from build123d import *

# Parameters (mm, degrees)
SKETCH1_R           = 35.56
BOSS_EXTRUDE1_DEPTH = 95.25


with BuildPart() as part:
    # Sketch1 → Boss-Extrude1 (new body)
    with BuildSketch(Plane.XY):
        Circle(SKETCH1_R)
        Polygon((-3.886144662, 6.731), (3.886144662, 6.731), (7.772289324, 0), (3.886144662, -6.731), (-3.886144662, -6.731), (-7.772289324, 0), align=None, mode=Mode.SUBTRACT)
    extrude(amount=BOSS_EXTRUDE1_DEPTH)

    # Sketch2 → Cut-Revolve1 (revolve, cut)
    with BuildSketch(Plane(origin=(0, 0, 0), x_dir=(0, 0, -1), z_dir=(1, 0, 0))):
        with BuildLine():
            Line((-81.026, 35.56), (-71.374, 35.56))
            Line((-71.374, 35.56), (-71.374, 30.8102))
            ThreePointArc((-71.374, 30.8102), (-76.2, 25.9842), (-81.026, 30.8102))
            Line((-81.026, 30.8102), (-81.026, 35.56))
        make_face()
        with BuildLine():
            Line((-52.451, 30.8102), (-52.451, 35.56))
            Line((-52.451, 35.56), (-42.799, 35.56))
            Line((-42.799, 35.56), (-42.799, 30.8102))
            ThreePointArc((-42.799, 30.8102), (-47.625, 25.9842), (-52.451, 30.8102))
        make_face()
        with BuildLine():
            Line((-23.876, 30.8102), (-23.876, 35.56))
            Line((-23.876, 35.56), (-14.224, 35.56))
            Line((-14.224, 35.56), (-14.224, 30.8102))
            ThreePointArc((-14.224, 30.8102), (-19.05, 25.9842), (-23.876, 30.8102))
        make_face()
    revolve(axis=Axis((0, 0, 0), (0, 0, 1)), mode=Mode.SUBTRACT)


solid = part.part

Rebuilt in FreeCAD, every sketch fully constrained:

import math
import FreeCAD as App
import Part
import Sketcher
Q = App.Units.Quantity


def add_polygon(sketch, points):
    """Adds a closed chain of lines whose ends are joined by coincident constraints."""
    first, n = sketch.GeometryCount, len(points)
    for a, b in zip(points, points[1:] + points[:1]):
        sketch.addGeometry(Part.LineSegment(App.Vector(*a, 0), App.Vector(*b, 0)), False)
    for i in range(n):
        sketch.addConstraint(Sketcher.Constraint("Coincident", first + i, 2, first + (i + 1) % n, 1))

doc = App.newDocument("Part")
params = doc.addObject("Spreadsheet::Sheet", "Params")
for row, (alias, value) in enumerate([
    ("sketch1_diameter", "2.8 in"),
    ("pad1_length", "3.75 in"),
    ("sketch2_radius", "0.19 in"),
    ("sketch2_width", "0.187 in"),
    ("groove_angle", "360 deg"),
], start=1):
    params.set(f"A{row}", alias)
    params.set(f"B{row}", "=" + value)
    params.setAlias(f"B{row}", alias)

body = doc.addObject("PartDesign::Body", "Body")

sketch1 = body.newObject("Sketcher::SketchObject", "Sketch")
sketch1.AttachmentSupport = (doc.getObject("XY_Plane"), [""])
sketch1.MapMode = "FlatFace"
sketch1.addGeometry(Part.Circle(App.Vector(0, 0, 0), App.Vector(0, 0, 1), 36), False)
add_polygon(sketch1, [(-8, 0), (-4, 7), (4, 7), (8, 0), (4, -7), (-4, -7)])
sketch1.addConstraint([
    Sketcher.Constraint("Horizontal", 2),
    Sketcher.Constraint("Horizontal", 5),
    Sketcher.Constraint("Coincident", 0, 3, -1, 1),
    Sketcher.Constraint("Symmetric", 1, 2, 4, 2, -1, 1),
    Sketcher.Constraint("Symmetric", 3, 2, 6, 2, -1, 1),
    Sketcher.Constraint("PointOnObject", 3, 2, -1),
    Sketcher.Constraint("Parallel", 3, 6),
    Sketcher.Constraint("Vertical", 2, 2, 4, 2),
    Sketcher.Constraint("Diameter", 0, Q("2.8 in")),
    Sketcher.Constraint("Angle", 1, Q("60 deg")),
    Sketcher.Constraint("DistanceY", 4, 2, 2, 2, Q("0.53 in")),
    Sketcher.Constraint("DistanceX", 2, 1, 2, 2, 7.772289),
])
sketch1.setExpression("Constraints[14]", "Params.sketch1_diameter")
pad1 = body.newObject("PartDesign::Pad", "Pad")
pad1.Profile = sketch1
pad1.setExpression("Length", "Params.pad1_length")

sketch2 = body.newObject("Sketcher::SketchObject", "Sketch001")
sketch2.AttachmentSupport = (doc.getObject("YZ_Plane"), [""])
sketch2.MapMode = "FlatFace"
sketch2.addGeometry([
    Part.LineSegment(App.Vector(35.6, 71.4, 0), App.Vector(35.6, 81, 0)),
    Part.LineSegment(App.Vector(35.6, 81, 0), App.Vector(30.8, 81, 0)),
    Part.ArcOfCircle(Part.Circle(App.Vector(30.8, 76.2, 0), App.Vector(0, 0, 1), 4.8), math.radians(90), math.radians(270)),
    Part.LineSegment(App.Vector(30.8, 71.4, 0), App.Vector(35.6, 71.4, 0)),
    Part.LineSegment(App.Vector(35.6, 52.5, 0), App.Vector(30.8, 52.5, 0)),
    Part.ArcOfCircle(Part.Circle(App.Vector(30.8, 47.6, 0), App.Vector(0, 0, 1), 4.8), math.radians(90), math.radians(270)),
    Part.LineSegment(App.Vector(30.8, 42.8, 0), App.Vector(35.6, 42.8, 0)),
    Part.LineSegment(App.Vector(35.6, 42.8, 0), App.Vector(35.6, 52.5, 0)),
    Part.LineSegment(App.Vector(35.6, 23.9, 0), App.Vector(30.8, 23.9, 0)),
    Part.ArcOfCircle(Part.Circle(App.Vector(30.8, 19.1, 0), App.Vector(0, 0, 1), 4.8), math.radians(90), math.radians(270)),
    Part.LineSegment(App.Vector(30.8, 14.2, 0), App.Vector(35.6, 14.2, 0)),
    Part.LineSegment(App.Vector(35.6, 14.2, 0), App.Vector(35.6, 23.9, 0)),
], False)
sketch2.addConstraint([
    Sketcher.Constraint("Coincident", 0, 2, 1, 1),
    Sketcher.Constraint("Tangent", 1, 2, 2, 1),
    Sketcher.Constraint("Tangent", 2, 2, 3, 1),
    Sketcher.Constraint("Coincident", 3, 2, 0, 1),
    Sketcher.Constraint("Tangent", 4, 2, 5, 1),
    Sketcher.Constraint("Tangent", 5, 2, 6, 1),
    Sketcher.Constraint("Coincident", 6, 2, 7, 1),
    Sketcher.Constraint("Coincident", 7, 2, 4, 1),
    Sketcher.Constraint("Tangent", 8, 2, 9, 1),
    Sketcher.Constraint("Tangent", 9, 2, 10, 1),
    Sketcher.Constraint("Coincident", 10, 2, 11, 1),
    Sketcher.Constraint("Coincident", 11, 2, 8, 1),
    Sketcher.Constraint("Vertical", 0),
    Sketcher.Constraint("Horizontal", 1),
    Sketcher.Constraint("Horizontal", 3),
    Sketcher.Constraint("Horizontal", 4),
    Sketcher.Constraint("Horizontal", 6),
    Sketcher.Constraint("Vertical", 7),
    Sketcher.Constraint("Horizontal", 8),
    Sketcher.Constraint("Horizontal", 10),
    Sketcher.Constraint("Vertical", 11),
    Sketcher.Constraint("Equal", 2, 5),
    Sketcher.Constraint("Equal", 5, 9),
    Sketcher.Constraint("Vertical", 2, 3, 5, 3),
    Sketcher.Constraint("Vertical", 5, 3, 9, 3),
    Sketcher.Constraint("Vertical", 3, 2, 6, 2),
    Sketcher.Constraint("Vertical", 7, 2, 10, 2),
    Sketcher.Constraint("Radius", 2, Q("0.19 in")),
    Sketcher.Constraint("DistanceY", -1, 1, 2, 3, Q("3 in")),
    Sketcher.Constraint("DistanceX", -1, 1, 0, 2, Q("1.4 in")),
    Sketcher.Constraint("DistanceX", 1, 2, 1, 1, Q("0.187 in")),
    Sketcher.Constraint("DistanceY", -1, 1, 9, 3, Q("0.75 in")),
    Sketcher.Constraint("DistanceY", -1, 1, 5, 3, Q("1.875 in")),
])
sketch2.setExpression("Constraints[27]", "Params.sketch2_radius")
sketch2.setExpression("Constraints[30]", "Params.sketch2_width")
groove = body.newObject("PartDesign::Groove", "Groove")
groove.Profile = sketch2
groove.ReferenceAxis = (sketch2, ["V_Axis"])
groove.setExpression("Angle", "Params.groove_angle")

doc.recompute()
